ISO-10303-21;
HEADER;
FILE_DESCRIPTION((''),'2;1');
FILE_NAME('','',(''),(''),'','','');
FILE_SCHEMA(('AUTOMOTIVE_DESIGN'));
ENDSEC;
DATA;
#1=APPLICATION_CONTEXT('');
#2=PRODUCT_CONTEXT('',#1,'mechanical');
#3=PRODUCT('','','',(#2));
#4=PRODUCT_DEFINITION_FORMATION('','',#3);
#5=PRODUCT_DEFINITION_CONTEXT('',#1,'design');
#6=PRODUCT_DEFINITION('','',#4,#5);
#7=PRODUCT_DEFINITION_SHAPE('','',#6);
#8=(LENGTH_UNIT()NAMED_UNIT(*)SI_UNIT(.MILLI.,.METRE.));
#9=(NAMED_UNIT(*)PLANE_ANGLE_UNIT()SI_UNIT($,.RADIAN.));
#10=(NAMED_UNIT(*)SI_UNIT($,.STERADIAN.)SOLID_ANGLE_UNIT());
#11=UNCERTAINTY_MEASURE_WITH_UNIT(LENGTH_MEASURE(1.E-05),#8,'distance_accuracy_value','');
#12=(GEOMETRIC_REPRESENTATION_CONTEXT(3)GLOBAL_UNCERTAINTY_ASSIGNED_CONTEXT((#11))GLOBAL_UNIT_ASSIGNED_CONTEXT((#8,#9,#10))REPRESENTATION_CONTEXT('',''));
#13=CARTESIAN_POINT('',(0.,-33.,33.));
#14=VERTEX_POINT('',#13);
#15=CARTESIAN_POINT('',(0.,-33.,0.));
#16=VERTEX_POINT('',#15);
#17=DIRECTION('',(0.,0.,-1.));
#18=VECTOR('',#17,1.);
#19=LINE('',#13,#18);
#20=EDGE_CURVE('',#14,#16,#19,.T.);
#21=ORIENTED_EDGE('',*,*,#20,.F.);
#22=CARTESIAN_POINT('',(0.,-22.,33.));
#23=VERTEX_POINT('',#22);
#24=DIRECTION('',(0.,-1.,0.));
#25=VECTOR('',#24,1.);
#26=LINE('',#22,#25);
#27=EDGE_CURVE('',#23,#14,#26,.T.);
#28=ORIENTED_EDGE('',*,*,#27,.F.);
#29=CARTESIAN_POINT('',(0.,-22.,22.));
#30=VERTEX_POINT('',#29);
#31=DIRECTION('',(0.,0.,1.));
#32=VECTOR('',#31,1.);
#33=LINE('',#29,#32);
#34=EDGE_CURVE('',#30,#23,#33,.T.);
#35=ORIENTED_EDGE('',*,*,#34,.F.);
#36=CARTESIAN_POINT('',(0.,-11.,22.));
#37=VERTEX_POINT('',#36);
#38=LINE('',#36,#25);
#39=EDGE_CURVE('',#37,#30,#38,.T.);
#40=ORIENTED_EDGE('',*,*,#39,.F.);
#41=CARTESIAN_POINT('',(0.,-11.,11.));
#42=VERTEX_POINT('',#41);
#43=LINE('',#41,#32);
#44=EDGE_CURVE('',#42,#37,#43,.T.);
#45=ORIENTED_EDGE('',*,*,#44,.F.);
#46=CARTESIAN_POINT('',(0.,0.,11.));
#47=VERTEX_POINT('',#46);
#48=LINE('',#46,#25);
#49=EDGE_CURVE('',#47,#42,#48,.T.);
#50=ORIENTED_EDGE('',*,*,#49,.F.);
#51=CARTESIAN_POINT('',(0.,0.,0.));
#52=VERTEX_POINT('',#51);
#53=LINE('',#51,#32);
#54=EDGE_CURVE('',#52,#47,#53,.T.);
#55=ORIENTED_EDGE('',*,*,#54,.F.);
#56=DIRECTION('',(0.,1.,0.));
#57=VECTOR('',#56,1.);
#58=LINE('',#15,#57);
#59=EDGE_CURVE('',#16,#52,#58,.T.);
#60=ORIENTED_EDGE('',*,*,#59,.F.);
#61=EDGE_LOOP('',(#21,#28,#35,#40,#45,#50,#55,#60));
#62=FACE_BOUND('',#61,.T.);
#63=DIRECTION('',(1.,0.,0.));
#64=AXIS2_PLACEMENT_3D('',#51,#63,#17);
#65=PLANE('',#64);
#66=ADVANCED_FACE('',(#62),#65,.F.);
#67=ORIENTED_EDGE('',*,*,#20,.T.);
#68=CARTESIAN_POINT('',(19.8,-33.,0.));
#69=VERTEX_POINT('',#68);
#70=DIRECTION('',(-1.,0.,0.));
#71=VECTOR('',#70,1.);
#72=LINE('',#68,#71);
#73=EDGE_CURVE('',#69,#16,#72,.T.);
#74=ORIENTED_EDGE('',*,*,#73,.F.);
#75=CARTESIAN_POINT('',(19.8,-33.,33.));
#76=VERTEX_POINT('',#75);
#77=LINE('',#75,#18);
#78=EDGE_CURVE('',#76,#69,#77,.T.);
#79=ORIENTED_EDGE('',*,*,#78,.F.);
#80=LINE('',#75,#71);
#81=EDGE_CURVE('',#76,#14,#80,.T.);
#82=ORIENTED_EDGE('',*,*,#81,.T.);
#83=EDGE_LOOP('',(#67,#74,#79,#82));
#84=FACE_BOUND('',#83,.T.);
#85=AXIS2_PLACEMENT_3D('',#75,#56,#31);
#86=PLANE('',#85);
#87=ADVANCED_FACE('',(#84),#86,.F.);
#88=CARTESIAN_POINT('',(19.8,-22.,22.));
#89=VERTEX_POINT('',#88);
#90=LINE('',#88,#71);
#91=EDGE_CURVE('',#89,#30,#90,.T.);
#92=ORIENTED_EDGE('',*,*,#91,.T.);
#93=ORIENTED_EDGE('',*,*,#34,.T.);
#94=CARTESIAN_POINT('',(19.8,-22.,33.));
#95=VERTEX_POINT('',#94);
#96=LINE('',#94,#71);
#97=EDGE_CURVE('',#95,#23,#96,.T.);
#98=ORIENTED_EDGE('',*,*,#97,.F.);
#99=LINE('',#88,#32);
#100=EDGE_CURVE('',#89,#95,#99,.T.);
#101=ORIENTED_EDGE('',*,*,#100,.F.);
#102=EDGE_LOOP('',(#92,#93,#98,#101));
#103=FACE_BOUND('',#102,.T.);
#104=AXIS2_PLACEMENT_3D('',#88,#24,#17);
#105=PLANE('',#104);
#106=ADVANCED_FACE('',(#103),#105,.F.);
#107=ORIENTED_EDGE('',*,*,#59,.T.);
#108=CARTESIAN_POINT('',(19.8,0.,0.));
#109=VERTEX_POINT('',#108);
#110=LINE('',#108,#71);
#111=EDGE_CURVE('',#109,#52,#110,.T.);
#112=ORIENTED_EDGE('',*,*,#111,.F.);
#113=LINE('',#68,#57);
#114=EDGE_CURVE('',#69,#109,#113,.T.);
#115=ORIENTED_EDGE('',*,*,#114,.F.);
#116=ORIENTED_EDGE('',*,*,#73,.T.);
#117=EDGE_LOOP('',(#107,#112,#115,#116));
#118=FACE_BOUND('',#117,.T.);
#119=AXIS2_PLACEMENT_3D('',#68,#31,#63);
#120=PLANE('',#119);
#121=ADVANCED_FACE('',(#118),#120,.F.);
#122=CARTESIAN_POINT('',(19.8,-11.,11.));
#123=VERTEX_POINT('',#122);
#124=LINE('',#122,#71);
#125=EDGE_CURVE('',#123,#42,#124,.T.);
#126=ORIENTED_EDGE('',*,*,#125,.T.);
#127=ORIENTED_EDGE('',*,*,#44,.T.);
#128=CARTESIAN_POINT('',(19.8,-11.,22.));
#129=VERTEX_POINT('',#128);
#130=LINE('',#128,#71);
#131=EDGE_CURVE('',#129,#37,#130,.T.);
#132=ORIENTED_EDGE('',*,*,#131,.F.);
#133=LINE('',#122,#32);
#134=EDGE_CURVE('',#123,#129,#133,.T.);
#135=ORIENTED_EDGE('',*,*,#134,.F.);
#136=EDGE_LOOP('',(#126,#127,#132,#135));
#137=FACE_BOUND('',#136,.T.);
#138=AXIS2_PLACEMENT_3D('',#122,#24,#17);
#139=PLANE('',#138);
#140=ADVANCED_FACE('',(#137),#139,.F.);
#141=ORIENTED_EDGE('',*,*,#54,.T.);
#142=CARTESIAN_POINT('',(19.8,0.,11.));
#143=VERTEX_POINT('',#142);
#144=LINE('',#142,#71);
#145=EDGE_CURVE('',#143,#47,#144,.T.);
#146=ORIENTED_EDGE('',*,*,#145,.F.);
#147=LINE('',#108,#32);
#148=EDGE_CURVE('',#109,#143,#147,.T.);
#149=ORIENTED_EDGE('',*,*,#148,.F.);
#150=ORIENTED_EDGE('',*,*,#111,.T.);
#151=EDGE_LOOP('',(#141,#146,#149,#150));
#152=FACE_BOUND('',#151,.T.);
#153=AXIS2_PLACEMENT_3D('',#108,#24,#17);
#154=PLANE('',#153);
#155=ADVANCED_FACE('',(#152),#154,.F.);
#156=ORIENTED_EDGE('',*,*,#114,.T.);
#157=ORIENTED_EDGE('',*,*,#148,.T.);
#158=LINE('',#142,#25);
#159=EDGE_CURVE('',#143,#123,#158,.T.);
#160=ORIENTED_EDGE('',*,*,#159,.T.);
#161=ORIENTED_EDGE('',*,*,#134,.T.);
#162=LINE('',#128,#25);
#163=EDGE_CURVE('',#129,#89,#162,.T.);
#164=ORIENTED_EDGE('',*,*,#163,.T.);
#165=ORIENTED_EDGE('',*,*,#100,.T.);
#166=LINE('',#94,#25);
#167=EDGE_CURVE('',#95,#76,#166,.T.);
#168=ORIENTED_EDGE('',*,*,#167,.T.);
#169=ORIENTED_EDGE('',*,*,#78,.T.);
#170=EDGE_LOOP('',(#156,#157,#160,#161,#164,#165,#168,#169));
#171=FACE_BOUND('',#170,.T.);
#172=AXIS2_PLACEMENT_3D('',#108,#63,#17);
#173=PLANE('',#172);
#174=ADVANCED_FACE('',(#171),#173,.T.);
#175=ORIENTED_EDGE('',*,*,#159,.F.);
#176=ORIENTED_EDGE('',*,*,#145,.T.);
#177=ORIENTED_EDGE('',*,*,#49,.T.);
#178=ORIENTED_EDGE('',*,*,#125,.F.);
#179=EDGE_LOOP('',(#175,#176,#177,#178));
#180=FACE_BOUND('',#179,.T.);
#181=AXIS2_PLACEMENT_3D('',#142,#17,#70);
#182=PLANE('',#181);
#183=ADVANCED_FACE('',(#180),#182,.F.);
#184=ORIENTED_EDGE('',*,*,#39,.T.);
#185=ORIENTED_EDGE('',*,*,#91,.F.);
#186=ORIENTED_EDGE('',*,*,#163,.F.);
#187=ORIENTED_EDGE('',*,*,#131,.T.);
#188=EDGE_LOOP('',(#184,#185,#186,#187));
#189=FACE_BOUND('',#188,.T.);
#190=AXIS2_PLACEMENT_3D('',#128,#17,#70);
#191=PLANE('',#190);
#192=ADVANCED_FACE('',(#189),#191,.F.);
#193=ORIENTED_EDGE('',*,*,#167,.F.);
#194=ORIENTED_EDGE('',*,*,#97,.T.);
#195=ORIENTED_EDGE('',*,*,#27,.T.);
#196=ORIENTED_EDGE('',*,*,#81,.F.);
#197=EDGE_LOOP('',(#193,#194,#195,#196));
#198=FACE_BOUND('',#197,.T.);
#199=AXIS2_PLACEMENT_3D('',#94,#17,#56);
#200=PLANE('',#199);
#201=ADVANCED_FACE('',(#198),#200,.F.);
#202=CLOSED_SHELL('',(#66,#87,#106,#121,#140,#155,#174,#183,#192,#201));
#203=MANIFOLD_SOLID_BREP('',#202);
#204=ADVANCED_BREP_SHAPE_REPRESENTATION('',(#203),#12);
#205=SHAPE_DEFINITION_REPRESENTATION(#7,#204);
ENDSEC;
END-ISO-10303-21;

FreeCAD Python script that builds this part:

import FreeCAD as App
import Part
import Sketcher
from FreeCAD import Vector
Q = App.Units.Quantity


def add_polygon(sketch, points):
    """Adds a closed chain of lines whose ends are joined by coincident constraints."""
    first, n = sketch.GeometryCount, len(points)
    for a, b in zip(points, points[1:] + points[:1]):
        sketch.addGeometry(Part.LineSegment(App.Vector(*a, 0), App.Vector(*b, 0)), False)
    for i in range(n):
        sketch.addConstraint(Sketcher.Constraint("Coincident", first + i, 2, first + (i + 1) % n, 1))

doc = App.newDocument("Part")
body = doc.addObject("PartDesign::Body", "Body")

sketch1 = doc.addObject("Sketcher::SketchObject", "Sketch")
body.addObject(sketch1)
sketch1.AttachmentSupport = (doc.YZ_Plane, [""])
sketch1.MapMode = "FlatFace"
add_polygon(sketch1, [(0, 0), (0, 11), (-11, 11), (-11, 22), (-22, 22), (-22, 33), (-33, 33), (-33, 0)])
sketch1.addConstraint([
    Sketcher.Constraint("Vertical", 0),
    Sketcher.Constraint("Horizontal", 1),
    Sketcher.Constraint("Vertical", 2),
    Sketcher.Constraint("Horizontal", 3),
    Sketcher.Constraint("Vertical", 4),
    Sketcher.Constraint("Horizontal", 5),
    Sketcher.Constraint("Vertical", 6),
    Sketcher.Constraint("Horizontal", 7),
    Sketcher.Constraint("Coincident", 7, 2, -1, 1),
    Sketcher.Constraint("Equal", 1, 3),
    Sketcher.Constraint("Equal", 3, 5),
    Sketcher.Constraint("Equal", 5, 0),
    Sketcher.Constraint("Equal", 0, 2),
    Sketcher.Constraint("Equal", 2, 4),
    Sketcher.Constraint("DistanceX", 1, 2, 1, 1, Q("11 mm")),
])
pad1 = doc.addObject("PartDesign::Pad", "Pad")
body.addObject(pad1)
pad1.Profile = sketch1
pad1.Length = 19.8

doc.recompute()
